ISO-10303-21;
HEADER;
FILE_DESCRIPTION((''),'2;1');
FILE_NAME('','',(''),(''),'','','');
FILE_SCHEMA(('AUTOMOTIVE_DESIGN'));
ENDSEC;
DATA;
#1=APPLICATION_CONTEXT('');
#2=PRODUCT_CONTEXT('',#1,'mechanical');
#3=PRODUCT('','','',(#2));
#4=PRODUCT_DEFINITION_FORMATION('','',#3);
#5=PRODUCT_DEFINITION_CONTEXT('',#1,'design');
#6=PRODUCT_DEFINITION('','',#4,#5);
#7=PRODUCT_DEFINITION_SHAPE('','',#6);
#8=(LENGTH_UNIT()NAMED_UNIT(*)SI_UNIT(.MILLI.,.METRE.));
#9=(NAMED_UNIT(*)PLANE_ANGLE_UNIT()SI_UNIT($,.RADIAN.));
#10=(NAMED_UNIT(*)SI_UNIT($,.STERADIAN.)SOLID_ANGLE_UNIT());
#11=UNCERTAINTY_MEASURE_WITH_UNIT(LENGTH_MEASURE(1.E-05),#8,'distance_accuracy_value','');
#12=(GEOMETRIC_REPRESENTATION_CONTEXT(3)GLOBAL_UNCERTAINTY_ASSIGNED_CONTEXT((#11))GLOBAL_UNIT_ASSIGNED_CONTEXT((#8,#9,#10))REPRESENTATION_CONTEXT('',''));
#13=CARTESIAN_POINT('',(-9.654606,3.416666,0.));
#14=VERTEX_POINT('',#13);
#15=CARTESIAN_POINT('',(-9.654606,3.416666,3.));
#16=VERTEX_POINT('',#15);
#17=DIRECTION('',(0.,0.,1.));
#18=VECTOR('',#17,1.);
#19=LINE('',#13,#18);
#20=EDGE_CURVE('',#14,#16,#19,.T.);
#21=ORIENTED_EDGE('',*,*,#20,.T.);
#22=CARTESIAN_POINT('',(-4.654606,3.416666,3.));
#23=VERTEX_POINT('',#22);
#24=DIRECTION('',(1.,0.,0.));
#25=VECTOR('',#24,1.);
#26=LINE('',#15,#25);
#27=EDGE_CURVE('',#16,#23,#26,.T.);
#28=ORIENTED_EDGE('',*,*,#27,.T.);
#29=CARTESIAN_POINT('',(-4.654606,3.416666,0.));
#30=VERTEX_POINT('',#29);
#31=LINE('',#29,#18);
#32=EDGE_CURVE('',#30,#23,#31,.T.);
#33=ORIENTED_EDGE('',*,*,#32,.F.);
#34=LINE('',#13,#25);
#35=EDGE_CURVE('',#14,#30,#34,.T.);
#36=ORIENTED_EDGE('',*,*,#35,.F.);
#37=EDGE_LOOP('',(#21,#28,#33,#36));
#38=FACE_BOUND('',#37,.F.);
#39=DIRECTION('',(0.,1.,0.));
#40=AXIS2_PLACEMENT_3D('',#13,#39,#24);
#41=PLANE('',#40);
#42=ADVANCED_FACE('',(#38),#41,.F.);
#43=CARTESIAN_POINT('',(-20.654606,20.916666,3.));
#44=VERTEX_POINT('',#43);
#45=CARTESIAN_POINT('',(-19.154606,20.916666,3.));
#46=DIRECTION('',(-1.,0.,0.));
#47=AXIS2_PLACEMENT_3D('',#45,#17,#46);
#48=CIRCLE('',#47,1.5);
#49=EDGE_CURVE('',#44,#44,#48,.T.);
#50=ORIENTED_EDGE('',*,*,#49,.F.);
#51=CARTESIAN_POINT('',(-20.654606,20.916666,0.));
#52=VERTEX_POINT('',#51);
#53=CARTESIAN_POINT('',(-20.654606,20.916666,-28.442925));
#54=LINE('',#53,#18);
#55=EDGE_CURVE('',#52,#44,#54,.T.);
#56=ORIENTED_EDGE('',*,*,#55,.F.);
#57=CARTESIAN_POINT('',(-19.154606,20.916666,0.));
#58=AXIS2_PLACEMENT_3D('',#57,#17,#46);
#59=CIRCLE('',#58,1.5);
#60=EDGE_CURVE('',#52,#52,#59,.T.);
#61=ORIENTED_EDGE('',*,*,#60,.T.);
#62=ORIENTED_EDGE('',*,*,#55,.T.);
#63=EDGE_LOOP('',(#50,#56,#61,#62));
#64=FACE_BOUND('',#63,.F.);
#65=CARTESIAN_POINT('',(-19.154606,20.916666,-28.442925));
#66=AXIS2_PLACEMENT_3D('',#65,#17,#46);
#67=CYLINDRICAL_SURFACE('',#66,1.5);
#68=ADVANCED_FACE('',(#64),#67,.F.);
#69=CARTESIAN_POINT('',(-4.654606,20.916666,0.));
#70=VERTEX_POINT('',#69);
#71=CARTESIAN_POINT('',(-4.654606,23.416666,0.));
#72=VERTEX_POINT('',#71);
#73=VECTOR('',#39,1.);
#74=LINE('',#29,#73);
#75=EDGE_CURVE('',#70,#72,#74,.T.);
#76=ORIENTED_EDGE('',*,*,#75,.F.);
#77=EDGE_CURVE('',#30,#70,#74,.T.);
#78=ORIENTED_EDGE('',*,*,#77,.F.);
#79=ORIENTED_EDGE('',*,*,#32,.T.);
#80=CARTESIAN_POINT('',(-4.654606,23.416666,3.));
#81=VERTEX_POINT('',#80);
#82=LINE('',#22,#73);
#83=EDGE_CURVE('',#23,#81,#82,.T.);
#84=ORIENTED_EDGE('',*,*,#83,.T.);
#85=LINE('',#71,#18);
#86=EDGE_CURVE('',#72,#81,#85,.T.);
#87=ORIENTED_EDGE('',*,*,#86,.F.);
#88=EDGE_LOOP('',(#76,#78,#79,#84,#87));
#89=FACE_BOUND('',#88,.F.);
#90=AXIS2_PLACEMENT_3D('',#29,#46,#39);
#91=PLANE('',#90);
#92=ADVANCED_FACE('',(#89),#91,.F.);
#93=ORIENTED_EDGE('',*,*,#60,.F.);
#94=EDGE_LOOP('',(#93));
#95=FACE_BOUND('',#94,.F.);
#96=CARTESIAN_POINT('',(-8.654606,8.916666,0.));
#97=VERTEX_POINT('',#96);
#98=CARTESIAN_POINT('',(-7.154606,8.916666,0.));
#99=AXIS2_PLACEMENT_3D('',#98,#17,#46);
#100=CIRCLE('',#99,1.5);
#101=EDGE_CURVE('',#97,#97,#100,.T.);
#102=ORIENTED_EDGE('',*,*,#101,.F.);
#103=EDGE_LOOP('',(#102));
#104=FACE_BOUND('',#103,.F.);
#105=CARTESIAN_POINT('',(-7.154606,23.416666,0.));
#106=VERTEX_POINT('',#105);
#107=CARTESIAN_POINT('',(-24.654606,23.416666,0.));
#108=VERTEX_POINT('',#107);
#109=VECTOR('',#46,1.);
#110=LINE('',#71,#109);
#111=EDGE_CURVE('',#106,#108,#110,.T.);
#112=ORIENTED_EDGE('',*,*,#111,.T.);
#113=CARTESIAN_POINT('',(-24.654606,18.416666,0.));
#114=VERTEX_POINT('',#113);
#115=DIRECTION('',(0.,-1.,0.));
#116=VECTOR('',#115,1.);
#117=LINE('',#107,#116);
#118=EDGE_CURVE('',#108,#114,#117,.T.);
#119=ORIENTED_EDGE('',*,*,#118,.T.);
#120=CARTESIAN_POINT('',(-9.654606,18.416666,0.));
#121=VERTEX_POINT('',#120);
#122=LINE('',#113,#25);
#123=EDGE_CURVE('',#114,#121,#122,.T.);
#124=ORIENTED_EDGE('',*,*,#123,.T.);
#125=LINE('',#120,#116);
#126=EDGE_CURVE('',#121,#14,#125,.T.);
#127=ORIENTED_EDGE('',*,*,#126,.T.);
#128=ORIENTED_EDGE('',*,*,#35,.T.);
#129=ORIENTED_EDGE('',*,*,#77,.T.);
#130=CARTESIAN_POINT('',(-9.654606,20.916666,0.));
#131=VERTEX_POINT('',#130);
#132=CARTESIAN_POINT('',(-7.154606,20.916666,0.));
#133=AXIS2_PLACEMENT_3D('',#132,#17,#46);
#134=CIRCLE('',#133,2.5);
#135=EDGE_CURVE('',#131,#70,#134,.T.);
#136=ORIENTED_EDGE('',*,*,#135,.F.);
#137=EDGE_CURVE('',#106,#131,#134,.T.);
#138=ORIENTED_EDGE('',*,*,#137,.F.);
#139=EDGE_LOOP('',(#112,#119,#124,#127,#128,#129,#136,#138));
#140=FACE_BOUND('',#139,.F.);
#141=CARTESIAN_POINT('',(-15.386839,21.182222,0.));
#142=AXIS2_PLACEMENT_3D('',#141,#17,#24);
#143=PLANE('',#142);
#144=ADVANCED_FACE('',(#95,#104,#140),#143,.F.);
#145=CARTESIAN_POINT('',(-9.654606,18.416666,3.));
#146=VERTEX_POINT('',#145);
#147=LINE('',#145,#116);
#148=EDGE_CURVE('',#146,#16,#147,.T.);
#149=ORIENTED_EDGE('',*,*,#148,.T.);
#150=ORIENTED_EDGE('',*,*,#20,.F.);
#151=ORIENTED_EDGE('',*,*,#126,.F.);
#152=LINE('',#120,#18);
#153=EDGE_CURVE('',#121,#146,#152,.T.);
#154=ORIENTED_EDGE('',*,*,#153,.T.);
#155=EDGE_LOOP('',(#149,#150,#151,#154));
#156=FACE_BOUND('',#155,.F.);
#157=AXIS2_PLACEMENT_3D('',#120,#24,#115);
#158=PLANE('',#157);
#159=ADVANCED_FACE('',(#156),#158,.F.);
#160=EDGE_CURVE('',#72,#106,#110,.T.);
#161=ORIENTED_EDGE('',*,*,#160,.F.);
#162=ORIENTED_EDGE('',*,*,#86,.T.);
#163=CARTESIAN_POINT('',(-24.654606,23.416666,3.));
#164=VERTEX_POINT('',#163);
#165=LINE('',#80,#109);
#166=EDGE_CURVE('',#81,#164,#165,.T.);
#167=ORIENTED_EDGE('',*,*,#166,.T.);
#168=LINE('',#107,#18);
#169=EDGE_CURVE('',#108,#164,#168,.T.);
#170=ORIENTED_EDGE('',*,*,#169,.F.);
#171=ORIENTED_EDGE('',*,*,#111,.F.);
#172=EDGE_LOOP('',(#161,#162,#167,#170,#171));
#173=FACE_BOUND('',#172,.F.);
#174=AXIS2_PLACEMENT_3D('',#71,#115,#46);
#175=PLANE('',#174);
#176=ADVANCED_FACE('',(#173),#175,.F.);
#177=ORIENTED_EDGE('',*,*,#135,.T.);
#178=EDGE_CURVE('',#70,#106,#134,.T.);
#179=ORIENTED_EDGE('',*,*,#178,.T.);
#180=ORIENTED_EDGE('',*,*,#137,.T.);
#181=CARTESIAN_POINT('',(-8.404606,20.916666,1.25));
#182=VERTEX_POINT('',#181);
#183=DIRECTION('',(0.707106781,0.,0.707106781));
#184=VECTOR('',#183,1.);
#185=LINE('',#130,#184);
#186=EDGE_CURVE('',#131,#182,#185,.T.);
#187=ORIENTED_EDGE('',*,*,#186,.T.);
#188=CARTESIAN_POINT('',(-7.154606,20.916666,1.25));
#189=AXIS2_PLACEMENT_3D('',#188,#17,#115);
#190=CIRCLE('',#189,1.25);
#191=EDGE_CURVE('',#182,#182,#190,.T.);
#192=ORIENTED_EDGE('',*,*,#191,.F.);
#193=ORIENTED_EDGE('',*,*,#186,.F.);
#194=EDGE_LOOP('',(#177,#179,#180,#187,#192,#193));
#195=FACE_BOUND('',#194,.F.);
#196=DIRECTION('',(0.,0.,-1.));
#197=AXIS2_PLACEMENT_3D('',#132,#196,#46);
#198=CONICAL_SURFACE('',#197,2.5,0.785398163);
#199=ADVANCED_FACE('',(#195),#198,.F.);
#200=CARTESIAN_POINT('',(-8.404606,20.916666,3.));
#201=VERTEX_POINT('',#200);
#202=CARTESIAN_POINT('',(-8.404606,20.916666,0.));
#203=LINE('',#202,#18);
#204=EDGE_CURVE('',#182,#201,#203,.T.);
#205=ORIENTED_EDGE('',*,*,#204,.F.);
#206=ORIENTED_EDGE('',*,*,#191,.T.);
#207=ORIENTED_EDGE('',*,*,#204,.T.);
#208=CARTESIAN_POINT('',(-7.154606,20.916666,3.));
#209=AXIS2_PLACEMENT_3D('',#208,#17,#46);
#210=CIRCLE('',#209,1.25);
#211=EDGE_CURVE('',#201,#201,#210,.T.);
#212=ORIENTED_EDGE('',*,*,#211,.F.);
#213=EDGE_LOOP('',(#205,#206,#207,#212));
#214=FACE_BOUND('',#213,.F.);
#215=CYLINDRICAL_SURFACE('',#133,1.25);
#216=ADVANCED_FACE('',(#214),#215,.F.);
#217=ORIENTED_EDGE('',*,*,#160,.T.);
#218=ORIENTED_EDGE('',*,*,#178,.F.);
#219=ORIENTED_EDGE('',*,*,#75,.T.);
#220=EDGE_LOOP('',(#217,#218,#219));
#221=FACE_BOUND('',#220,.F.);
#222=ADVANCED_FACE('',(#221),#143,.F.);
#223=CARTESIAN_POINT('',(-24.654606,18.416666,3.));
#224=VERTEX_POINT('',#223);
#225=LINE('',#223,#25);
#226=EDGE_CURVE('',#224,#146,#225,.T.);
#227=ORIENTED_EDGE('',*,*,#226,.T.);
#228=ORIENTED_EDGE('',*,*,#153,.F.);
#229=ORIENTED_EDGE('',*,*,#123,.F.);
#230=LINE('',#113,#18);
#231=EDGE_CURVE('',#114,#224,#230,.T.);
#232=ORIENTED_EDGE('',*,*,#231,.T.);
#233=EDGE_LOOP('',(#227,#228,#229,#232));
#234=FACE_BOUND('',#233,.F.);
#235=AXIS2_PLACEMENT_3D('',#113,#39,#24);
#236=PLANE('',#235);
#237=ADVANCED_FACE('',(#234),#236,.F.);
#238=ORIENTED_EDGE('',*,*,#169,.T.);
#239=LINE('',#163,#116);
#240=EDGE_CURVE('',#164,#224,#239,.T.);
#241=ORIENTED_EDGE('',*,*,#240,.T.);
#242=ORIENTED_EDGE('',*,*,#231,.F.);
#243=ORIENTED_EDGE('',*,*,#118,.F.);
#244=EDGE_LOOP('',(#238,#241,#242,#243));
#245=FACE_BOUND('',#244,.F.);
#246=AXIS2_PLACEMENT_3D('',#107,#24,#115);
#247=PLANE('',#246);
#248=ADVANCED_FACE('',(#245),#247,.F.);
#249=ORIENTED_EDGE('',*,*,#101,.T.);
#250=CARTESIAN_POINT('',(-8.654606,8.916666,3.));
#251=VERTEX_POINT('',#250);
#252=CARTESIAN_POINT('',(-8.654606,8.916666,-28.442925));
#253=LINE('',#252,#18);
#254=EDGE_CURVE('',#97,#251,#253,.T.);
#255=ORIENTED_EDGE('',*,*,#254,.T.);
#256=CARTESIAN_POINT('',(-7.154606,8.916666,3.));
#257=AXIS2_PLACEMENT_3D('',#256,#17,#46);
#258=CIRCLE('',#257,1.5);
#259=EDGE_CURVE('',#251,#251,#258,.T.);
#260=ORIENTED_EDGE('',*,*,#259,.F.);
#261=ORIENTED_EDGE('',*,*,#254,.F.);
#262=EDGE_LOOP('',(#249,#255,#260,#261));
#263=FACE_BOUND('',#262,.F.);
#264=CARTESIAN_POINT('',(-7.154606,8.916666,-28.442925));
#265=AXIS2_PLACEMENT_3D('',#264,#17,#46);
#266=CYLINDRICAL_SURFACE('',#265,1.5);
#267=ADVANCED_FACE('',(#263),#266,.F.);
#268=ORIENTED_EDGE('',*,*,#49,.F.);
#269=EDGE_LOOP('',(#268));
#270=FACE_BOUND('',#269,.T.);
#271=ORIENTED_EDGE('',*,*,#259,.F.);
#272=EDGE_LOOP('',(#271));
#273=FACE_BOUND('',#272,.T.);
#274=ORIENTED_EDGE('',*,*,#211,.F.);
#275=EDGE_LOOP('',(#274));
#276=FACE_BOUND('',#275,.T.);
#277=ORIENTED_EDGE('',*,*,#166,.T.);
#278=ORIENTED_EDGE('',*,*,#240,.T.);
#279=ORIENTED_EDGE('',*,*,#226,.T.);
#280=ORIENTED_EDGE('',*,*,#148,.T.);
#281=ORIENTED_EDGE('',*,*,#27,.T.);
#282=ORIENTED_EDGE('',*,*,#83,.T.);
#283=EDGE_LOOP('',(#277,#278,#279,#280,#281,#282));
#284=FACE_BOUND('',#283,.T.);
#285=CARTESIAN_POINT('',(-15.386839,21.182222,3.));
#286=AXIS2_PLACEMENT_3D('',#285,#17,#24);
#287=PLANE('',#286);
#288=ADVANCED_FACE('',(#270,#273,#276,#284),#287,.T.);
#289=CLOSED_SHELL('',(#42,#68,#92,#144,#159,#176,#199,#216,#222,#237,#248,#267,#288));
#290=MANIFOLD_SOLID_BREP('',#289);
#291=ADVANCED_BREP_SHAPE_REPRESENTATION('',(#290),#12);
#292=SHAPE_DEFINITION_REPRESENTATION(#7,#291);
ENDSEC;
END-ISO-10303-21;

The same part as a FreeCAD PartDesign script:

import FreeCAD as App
import Part
import Sketcher
from FreeCAD import Vector
Q = App.Units.Quantity


def add_polygon(sketch, points):
    """Adds a closed chain of lines whose ends are joined by coincident constraints."""
    first, n = sketch.GeometryCount, len(points)
    for a, b in zip(points, points[1:] + points[:1]):
        sketch.addGeometry(Part.LineSegment(App.Vector(*a, 0), App.Vector(*b, 0)), False)
    for i in range(n):
        sketch.addConstraint(Sketcher.Constraint("Coincident", first + i, 2, first + (i + 1) % n, 1))

doc = App.newDocument("Part")
params = doc.addObject("Spreadsheet::Sheet", "Params")
for row, (alias, value) in enumerate([
    ("sketch1_width", "20 mm"),
    ("sketch1_width2", "15 mm"),
    ("pad1_length", "3 mm"),
    ("sketch2_diameter", "3 mm"),
    ("hole_diameter", "3 mm"),
    ("sketch3_diameter", "2.5 mm"),
    ("hole2_diameter", "2.5 mm"),
    ("hole2_csink_diameter", "5 mm"),
], start=1):
    params.set(f"A{row}", alias)
    params.set(f"B{row}", "=" + value)
    params.setAlias(f"B{row}", alias)

body = doc.addObject("PartDesign::Body", "Body")

# Sketch on XY plane
sketch1 = doc.addObject("Sketcher::SketchObject", "Sketch")
body.addObject(sketch1)
sketch1.AttachmentSupport = (doc.XY_Plane, [""])
sketch1.MapMode = "FlatFace"
add_polygon(sketch1, [(-5, 23), (-25, 23), (-25, 18), (-10, 18), (-10, 3), (-5, 3)])  # lines 0-5
sketch1.addConstraint([
    Sketcher.Constraint("Horizontal", 0),
    Sketcher.Constraint("Vertical", 1),
    Sketcher.Constraint("Horizontal", 2),
    Sketcher.Constraint("Vertical", 3),
    Sketcher.Constraint("Horizontal", 4),
    Sketcher.Constraint("Vertical", 5),
    Sketcher.Constraint("Equal", 4, 1),
    Sketcher.Constraint("Equal", 2, 3),
    Sketcher.Constraint("DistanceX", 0, 2, 0, 1, Q("20 mm")),
    Sketcher.Constraint("DistanceX", 2, 1, 2, 2, Q("15 mm")),
    Sketcher.Constraint("DistanceX", 0, 2, -1, 1, Q("24.654606 mm")),
    Sketcher.Constraint("DistanceY", -1, 1, 0, 2, Q("23.416666 mm")),
])
sketch1.setExpression("Constraints[14]", "Params.sketch1_width")
sketch1.setExpression("Constraints[15]", "Params.sketch1_width2")
pad1 = doc.addObject("PartDesign::Pad", "Pad")
body.addObject(pad1)
pad1.Profile = sketch1
pad1.setExpression("Length", "Params.pad1_length")

# Sketch on XY plane
sketch2 = doc.addObject("Sketcher::SketchObject", "Sketch001")
body.addObject(sketch2)
sketch2.AttachmentSupport = (doc.XY_Plane, [""])
sketch2.MapMode = "FlatFace"
sketch2.addGeometry([
    Part.Circle(Vector(-7.2, 8.9, 0), Vector(0, 0, 1), 1.5),
    Part.Circle(Vector(-19.2, 20.9, 0), Vector(0, 0, 1), 1.5),
], False)
sketch2.addConstraint([
    Sketcher.Constraint("Equal", 0, 1),
    Sketcher.Constraint("Diameter", 0, Q("3 mm")),
    Sketcher.Constraint("DistanceX", 1, 3, 0, 3, Q("12 mm")),
    Sketcher.Constraint("DistanceY", 0, 3, 1, 3, Q("12 mm")),
    Sketcher.Constraint("DistanceX", 0, 3, -1, 1, Q("7.154606 mm")),
    Sketcher.Constraint("DistanceY", -1, 1, 0, 3, Q("8.916666 mm")),
])
sketch2.setExpression("Constraints[1]", "Params.sketch2_diameter")
doc.recompute()
hole = doc.addObject("PartDesign::Hole", "Hole")
body.addObject(hole)
hole.Profile = sketch2
hole.ThreadType = "None"
hole.setExpression("Diameter", "Params.hole_diameter")
hole.DepthType = "ThroughAll"
hole.Reversed = True

# Sketch on XY plane
sketch3 = doc.addObject("Sketcher::SketchObject", "Sketch002")
body.addObject(sketch3)
sketch3.AttachmentSupport = (doc.XY_Plane, [""])
sketch3.MapMode = "FlatFace"
sketch3.addGeometry(Part.Circle(Vector(-7.2, 20.9, 0), Vector(0, 0, 1), 1.2), False)
sketch3.addConstraint([
    Sketcher.Constraint("Diameter", 0, Q("2.5 mm")),
    Sketcher.Constraint("DistanceX", 0, 3, -1, 1, Q("7.154606 mm")),
    Sketcher.Constraint("DistanceY", -1, 1, 0, 3, Q("20.916666 mm")),
])
sketch3.setExpression("Constraints[0]", "Params.sketch3_diameter")
doc.recompute()
hole2 = doc.addObject("PartDesign::Hole", "Hole001")
body.addObject(hole2)
hole2.Profile = sketch3
hole2.ThreadType = "None"
hole2.setExpression("Diameter", "Params.hole2_diameter")
hole2.DepthType = "ThroughAll"
hole2.HoleCutType = "Countersink"
hole2.setExpression("HoleCutDiameter", "Params.hole2_csink_diameter")
hole2.HoleCutCountersinkAngle = 90
hole2.Reversed = True

doc.recompute()
